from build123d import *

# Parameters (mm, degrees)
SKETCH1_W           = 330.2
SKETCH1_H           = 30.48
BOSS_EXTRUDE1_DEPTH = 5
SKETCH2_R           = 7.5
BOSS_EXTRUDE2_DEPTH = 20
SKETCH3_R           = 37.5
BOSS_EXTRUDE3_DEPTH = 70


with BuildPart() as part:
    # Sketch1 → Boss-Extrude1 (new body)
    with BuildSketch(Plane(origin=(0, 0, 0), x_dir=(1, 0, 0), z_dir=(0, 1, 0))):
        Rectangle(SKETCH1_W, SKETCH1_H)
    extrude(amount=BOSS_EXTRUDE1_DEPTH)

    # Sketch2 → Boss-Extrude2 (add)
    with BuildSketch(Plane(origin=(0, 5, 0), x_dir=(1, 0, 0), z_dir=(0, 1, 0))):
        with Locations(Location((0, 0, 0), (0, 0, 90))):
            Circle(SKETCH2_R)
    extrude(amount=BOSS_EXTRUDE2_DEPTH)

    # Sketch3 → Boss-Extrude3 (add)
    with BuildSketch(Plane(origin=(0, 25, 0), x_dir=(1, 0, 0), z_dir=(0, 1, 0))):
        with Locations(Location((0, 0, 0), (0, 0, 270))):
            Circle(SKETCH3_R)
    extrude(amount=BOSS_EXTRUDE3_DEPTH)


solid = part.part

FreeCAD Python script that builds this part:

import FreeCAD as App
import Part
import Sketcher

doc = App.newDocument("Part")
params = doc.addObject("Spreadsheet::Sheet", "Params")
for row, (alias, value) in enumerate([
    ("sketch1_width", "330.2 mm"),
    ("sketch1_height", "30.48 mm"),
    ("pad1_length", "5 mm"),
    ("sketch2_diameter", "15 mm"),
    ("pad2_length", "20 mm"),
    ("sketch3_diameter", "75 mm"),
    ("pad3_length", "70 mm"),
], start=1):
    params.set(f"A{row}", alias)
    params.set(f"B{row}", "=" + value)
    params.setAlias(f"B{row}", alias)

body = doc.addObject("PartDesign::Body", "Body")

# Sketch on XZ plane
sketch1 = body.newObject("Sketcher::SketchObject", "Sketch")
sketch1.AttachmentSupport = (doc.getObject("XZ_Plane"), [""])
sketch1.MapMode = "FlatFace"
sketch1.addGeometry(Part.LineSegment(App.Vector(-165, -15, 0), App.Vector(-165, 15, 0)), False)
sketch1.addGeometry(Part.LineSegment(App.Vector(-165, 15, 0), App.Vector(165, 15, 0)), False)
sketch1.addGeometry(Part.LineSegment(App.Vector(165, 15, 0), App.Vector(165, -15, 0)), False)
sketch1.addGeometry(Part.LineSegment(App.Vector(165, -15, 0), App.Vector(-165, -15, 0)), False)
sketch1.addConstraint(Sketcher.Constraint("Coincident", 0, 2, 1, 1))
sketch1.addConstraint(Sketcher.Constraint("Coincident", 1, 2, 2, 1))
sketch1.addConstraint(Sketcher.Constraint("Coincident", 2, 2, 3, 1))
sketch1.addConstraint(Sketcher.Constraint("Coincident", 3, 2, 0, 1))
sketch1.addConstraint(Sketcher.Constraint("Vertical", 0))
sketch1.addConstraint(Sketcher.Constraint("Horizontal", 1))
sketch1.addConstraint(Sketcher.Constraint("Vertical", 2))
sketch1.addConstraint(Sketcher.Constraint("Horizontal", 3))
sketch1.addConstraint(Sketcher.Constraint("Symmetric", 0, 2, 2, 2, -1, 1))
sketch1.addConstraint(Sketcher.Constraint("DistanceX", 1, 1, 1, 2, 330.2))
sketch1.addConstraint(Sketcher.Constraint("DistanceY", 0, 1, 0, 2, 30.48))
sketch1.setExpression("Constraints[9]", "Params.sketch1_width")
sketch1.setExpression("Constraints[10]", "Params.sketch1_height")
pad1 = body.newObject("PartDesign::Pad", "Pad")
pad1.Profile = sketch1
pad1.setExpression("Length", "Params.pad1_length")
pad1.Reversed = True

# Sketch on XZ plane
sketch2 = body.newObject("Sketcher::SketchObject", "Sketch001")
sketch2.AttachmentSupport = (doc.getObject("XZ_Plane"), [""])
sketch2.MapMode = "FlatFace"
sketch2.AttachmentOffset = App.Placement(App.Vector(0, 0, -5), App.Rotation())
sketch2.addGeometry(Part.Circle(App.Vector(0, 0, 0), App.Vector(0, 0, 1), 8), False)
sketch2.addConstraint(Sketcher.Constraint("Coincident", 0, 3, -1, 1))
sketch2.addConstraint(Sketcher.Constraint("Diameter", 0, 15.0))
sketch2.setExpression("Constraints[1]", "Params.sketch2_diameter")
pad2 = body.newObject("PartDesign::Pad", "Pad001")
pad2.Profile = sketch2
pad2.setExpression("Length", "Params.pad2_length")
pad2.Reversed = True

# Sketch on XZ plane
sketch3 = body.newObject("Sketcher::SketchObject", "Sketch002")
sketch3.AttachmentSupport = (doc.getObject("XZ_Plane"), [""])
sketch3.MapMode = "FlatFace"
sketch3.AttachmentOffset = App.Placement(App.Vector(0, 0, -25), App.Rotation())
sketch3.addGeometry(Part.Circle(App.Vector(0, 0, 0), App.Vector(0, 0, 1), 38), False)
sketch3.addConstraint(Sketcher.Constraint("Coincident", 0, 3, -1, 1))
sketch3.addConstraint(Sketcher.Constraint("Diameter", 0, 75.0))
sketch3.setExpression("Constraints[1]", "Params.sketch3_diameter")
pad3 = body.newObject("PartDesign::Pad", "Pad002")
pad3.Profile = sketch3
pad3.setExpression("Length", "Params.pad3_length")
pad3.Reversed = True

doc.recompute()
